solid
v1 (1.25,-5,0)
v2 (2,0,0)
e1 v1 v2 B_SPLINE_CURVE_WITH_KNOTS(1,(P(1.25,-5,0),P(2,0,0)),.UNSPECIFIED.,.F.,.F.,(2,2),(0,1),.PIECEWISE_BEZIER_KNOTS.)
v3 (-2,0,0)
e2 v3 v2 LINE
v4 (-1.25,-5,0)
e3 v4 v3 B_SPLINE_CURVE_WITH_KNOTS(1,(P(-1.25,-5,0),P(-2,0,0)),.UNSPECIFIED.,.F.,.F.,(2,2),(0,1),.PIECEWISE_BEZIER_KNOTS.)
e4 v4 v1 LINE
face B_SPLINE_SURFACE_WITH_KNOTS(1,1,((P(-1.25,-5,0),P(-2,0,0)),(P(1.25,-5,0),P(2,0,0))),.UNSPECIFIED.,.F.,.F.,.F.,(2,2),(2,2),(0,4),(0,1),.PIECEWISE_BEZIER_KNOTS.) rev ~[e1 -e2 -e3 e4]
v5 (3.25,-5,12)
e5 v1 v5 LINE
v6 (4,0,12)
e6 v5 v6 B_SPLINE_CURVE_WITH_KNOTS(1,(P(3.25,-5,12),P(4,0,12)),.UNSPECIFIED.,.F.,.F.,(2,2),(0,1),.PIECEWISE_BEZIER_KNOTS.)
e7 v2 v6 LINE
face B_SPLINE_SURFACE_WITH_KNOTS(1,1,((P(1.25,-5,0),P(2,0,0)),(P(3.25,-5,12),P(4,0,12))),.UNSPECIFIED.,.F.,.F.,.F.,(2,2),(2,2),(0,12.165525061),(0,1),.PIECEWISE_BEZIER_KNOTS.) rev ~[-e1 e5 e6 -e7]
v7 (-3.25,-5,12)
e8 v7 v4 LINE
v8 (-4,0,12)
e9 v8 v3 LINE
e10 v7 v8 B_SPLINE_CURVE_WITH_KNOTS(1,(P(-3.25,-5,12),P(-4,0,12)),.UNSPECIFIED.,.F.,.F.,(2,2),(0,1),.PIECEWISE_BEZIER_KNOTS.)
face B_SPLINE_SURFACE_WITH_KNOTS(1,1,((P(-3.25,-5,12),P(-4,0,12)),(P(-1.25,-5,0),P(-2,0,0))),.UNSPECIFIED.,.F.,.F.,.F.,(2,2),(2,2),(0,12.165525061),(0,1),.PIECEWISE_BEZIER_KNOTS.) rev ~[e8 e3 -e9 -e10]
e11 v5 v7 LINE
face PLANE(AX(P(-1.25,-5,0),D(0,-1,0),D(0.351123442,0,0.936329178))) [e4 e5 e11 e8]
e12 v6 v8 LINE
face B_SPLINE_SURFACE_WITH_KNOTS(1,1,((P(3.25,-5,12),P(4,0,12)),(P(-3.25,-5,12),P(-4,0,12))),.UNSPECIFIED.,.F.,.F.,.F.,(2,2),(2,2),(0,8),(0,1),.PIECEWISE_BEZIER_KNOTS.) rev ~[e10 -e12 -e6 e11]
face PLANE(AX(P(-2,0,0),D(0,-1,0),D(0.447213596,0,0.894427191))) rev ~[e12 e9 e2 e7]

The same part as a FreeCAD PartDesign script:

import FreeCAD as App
import Part
import Sketcher

V = App.Vector

doc = App.newDocument("Part")
body = doc.addObject("PartDesign::Body", "Body")

# Sketch on XZ plane
sketch1 = body.newObject("Sketcher::SketchObject", "Sketch")
sketch1.AttachmentSupport = (doc.getObject("XZ_Plane"), [""])
sketch1.MapMode = "FlatFace"
sketch1.AttachmentOffset = App.Placement(V(0, 0, 5), App.Rotation())
sketch1.addGeometry([
    Part.LineSegment(V(-1.2, 0, 0), V(1.2, 0, 0)),
    Part.LineSegment(V(1.2, 0, 0), V(3.2, 12, 0)),
    Part.LineSegment(V(3.2, 12, 0), V(-3.2, 12, 0)),
    Part.LineSegment(V(-3.2, 12, 0), V(-1.2, 0, 0)),
], False)
sketch1.addConstraint([
    Sketcher.Constraint("Coincident", 0, 2, 1, 1),
    Sketcher.Constraint("Coincident", 1, 2, 2, 1),
    Sketcher.Constraint("Coincident", 2, 2, 3, 1),
    Sketcher.Constraint("Coincident", 3, 2, 0, 1),
    Sketcher.Constraint("Horizontal", 0),
    Sketcher.Constraint("Horizontal", 2),
    Sketcher.Constraint("Symmetric", 0, 2, 3, 2, -1, 1),
    Sketcher.Constraint("Equal", 1, 3),
    Sketcher.Constraint("DistanceX", 0, 1, 0, 2, 2.5),
    Sketcher.Constraint("DistanceX", 2, 2, 2, 1, 6.5),
    Sketcher.Constraint("DistanceY", -1, 1, 1, 2, 12.0),
])

# Sketch on XZ plane
sketch2 = body.newObject("Sketcher::SketchObject", "Sketch001")
sketch2.AttachmentSupport = (doc.getObject("XZ_Plane"), [""])
sketch2.MapMode = "FlatFace"
sketch2.addGeometry([
    Part.LineSegment(V(4, 12, 0), V(-4, 12, 0)),
    Part.LineSegment(V(-4, 12, 0), V(-2, 0, 0)),
    Part.LineSegment(V(-2, 0, 0), V(2, 0, 0)),
    Part.LineSegment(V(2, 0, 0), V(4, 12, 0)),
], False)
sketch2.addConstraint([
    Sketcher.Constraint("Coincident", 0, 2, 1, 1),
    Sketcher.Constraint("Coincident", 1, 2, 2, 1),
    Sketcher.Constraint("Coincident", 2, 2, 3, 1),
    Sketcher.Constraint("Coincident", 3, 2, 0, 1),
    Sketcher.Constraint("Horizontal", 0),
    Sketcher.Constraint("Horizontal", 2),
    Sketcher.Constraint("Symmetric", 1, 2, 2, 2, -1, 1),
    Sketcher.Constraint("Equal", 1, 3),
    Sketcher.Constraint("DistanceX", 0, 2, 0, 1, 8.0),
    Sketcher.Constraint("DistanceX", 2, 1, 2, 2, 4.0),
    Sketcher.Constraint("DistanceY", -1, 1, 0, 2, 12.0),
])

additiveloft = body.newObject("PartDesign::AdditiveLoft", "AdditiveLoft")
additiveloft.Profile = sketch1
additiveloft.Sections = [sketch2]

doc.recompute()
